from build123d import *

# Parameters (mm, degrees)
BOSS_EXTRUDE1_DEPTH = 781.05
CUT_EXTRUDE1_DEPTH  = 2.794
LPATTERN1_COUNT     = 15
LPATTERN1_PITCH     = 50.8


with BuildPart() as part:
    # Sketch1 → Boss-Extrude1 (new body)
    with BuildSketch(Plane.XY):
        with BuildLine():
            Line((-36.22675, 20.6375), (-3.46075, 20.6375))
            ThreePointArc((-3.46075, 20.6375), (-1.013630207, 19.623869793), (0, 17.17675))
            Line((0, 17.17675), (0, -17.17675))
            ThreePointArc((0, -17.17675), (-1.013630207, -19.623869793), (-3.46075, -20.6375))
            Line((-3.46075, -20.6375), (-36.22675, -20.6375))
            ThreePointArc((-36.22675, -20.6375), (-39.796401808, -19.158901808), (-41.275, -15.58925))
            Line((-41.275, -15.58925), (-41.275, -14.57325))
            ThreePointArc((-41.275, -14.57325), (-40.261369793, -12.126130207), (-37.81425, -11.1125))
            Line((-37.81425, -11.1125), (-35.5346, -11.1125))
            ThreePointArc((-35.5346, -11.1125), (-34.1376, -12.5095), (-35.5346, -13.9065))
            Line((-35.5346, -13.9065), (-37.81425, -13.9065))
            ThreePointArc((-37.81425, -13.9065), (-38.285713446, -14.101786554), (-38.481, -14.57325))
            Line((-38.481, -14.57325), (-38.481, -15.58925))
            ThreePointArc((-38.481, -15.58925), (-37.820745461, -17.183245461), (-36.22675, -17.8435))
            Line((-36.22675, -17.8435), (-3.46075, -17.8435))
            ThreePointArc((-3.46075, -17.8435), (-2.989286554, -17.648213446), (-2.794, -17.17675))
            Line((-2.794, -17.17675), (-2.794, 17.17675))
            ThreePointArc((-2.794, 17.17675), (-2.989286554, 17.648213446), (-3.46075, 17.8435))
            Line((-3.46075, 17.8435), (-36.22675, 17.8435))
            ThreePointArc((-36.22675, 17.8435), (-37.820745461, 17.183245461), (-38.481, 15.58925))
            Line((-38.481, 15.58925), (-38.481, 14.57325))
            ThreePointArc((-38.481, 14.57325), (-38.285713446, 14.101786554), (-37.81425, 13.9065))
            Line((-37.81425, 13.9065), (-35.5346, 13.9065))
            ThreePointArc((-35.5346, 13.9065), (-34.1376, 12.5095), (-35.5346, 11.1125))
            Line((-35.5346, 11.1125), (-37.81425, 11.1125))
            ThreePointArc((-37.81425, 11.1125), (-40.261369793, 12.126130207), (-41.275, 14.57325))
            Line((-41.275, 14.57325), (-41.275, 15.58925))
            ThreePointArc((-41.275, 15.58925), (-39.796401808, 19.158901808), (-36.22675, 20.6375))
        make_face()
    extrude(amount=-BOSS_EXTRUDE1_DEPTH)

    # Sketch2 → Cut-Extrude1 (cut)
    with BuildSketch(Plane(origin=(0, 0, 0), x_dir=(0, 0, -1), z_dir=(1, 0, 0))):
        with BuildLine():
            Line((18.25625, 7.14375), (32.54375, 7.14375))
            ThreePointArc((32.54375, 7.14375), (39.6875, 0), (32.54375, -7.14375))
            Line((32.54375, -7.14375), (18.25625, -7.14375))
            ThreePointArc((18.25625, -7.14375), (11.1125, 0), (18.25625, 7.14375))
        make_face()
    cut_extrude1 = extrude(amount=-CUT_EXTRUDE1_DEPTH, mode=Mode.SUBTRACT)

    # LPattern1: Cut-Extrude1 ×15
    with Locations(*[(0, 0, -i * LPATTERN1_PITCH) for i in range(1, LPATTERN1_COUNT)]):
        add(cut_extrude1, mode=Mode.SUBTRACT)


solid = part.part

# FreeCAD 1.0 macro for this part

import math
import FreeCAD as App
import Part
import Sketcher

V = App.Vector
Q = App.Units.Quantity

doc = App.newDocument("Part")
body = doc.addObject("PartDesign::Body", "Body")

# Sketch on XY plane
sketch1 = body.newObject("Sketcher::SketchObject", "Sketch")
sketch1.AttachmentSupport = (doc.getObject("XY_Plane"), [""])
sketch1.MapMode = "FlatFace"
sketch1.addGeometry([
    Part.LineSegment(V(-3.5, 20.6, 0), V(-36.2, 20.6, 0)),  # 0
    Part.ArcOfCircle(Part.Circle(V(-36.2, 15.6, 0), V(0, 0, 1), 5), math.radians(90), math.radians(180)),  # 1
    Part.LineSegment(V(-41.3, 15.6, 0), V(-41.3, 14.6, 0)),  # 2
    Part.ArcOfCircle(Part.Circle(V(-37.8, 14.6, 0), V(0, 0, 1), 3.5), math.radians(180), math.radians(270)),  # 3
    Part.LineSegment(V(-37.8, 11.1, 0), V(-35.5, 11.1, 0)),  # 4
    Part.ArcOfCircle(Part.Circle(V(-35.5, 12.5, 0), V(0, 0, 1), 1.4), math.radians(-90), math.radians(90)),  # 5
    Part.LineSegment(V(-35.5, 13.9, 0), V(-37.8, 13.9, 0)),  # 6
    Part.ArcOfCircle(Part.Circle(V(-37.8, 14.6, 0), V(0, 0, 1), 0.7), math.radians(-180), math.radians(-90)),  # 7
    Part.LineSegment(V(-38.5, 14.6, 0), V(-38.5, 15.6, 0)),  # 8
    Part.ArcOfCircle(Part.Circle(V(-36.2, 15.6, 0), V(0, 0, 1), 2.3), math.radians(90), math.radians(180)),  # 9
    Part.LineSegment(V(-36.2, 17.8, 0), V(-3.5, 17.8, 0)),  # 10
    Part.ArcOfCircle(Part.Circle(V(-3.5, 17.2, 0), V(0, 0, 1), 0.7), math.radians(0), math.radians(90)),  # 11
    Part.LineSegment(V(-2.8, 17.2, 0), V(-2.8, -17.2, 0)),  # 12
    Part.ArcOfCircle(Part.Circle(V(-3.5, -17.2, 0), V(0, 0, 1), 0.7), math.radians(-90), math.radians(0)),  # 13
    Part.LineSegment(V(-3.5, -17.8, 0), V(-36.2, -17.8, 0)),  # 14
    Part.ArcOfCircle(Part.Circle(V(-36.2, -15.6, 0), V(0, 0, 1), 2.3), math.radians(-180), math.radians(-90)),  # 15
    Part.LineSegment(V(-38.5, -15.6, 0), V(-38.5, -14.6, 0)),  # 16
    Part.ArcOfCircle(Part.Circle(V(-37.8, -14.6, 0), V(0, 0, 1), 0.7), math.radians(90), math.radians(180)),  # 17
    Part.LineSegment(V(-37.8, -13.9, 0), V(-35.5, -13.9, 0)),  # 18
    Part.ArcOfCircle(Part.Circle(V(-35.5, -12.5, 0), V(0, 0, 1), 1.4), math.radians(-90), math.radians(90)),  # 19
    Part.LineSegment(V(-35.5, -11.1, 0), V(-37.8, -11.1, 0)),  # 20
    Part.ArcOfCircle(Part.Circle(V(-37.8, -14.6, 0), V(0, 0, 1), 3.5), math.radians(90), math.radians(180)),  # 21
    Part.LineSegment(V(-41.3, -14.6, 0), V(-41.3, -15.6, 0)),  # 22
    Part.ArcOfCircle(Part.Circle(V(-36.2, -15.6, 0), V(0, 0, 1), 5), math.radians(180), math.radians(270)),  # 23
    Part.LineSegment(V(-36.2, -20.6, 0), V(-3.5, -20.6, 0)),  # 24
    Part.ArcOfCircle(Part.Circle(V(-3.5, -17.2, 0), V(0, 0, 1), 3.5), math.radians(-90), math.radians(0)),  # 25
    Part.LineSegment(V(0, -17.2, 0), V(0, 17.2, 0)),  # 26
    Part.ArcOfCircle(Part.Circle(V(-3.5, 17.2, 0), V(0, 0, 1), 3.5), math.radians(0), math.radians(90)),  # 27
], False)
sketch1.addConstraint([
    Sketcher.Constraint("Tangent", 0, 2, 1, 1),
    Sketcher.Constraint("Tangent", 1, 2, 2, 1),
    Sketcher.Constraint("Tangent", 2, 2, 3, 1),
    Sketcher.Constraint("Tangent", 3, 2, 4, 1),
    Sketcher.Constraint("Tangent", 4, 2, 5, 1),
    Sketcher.Constraint("Tangent", 5, 2, 6, 1),
    Sketcher.Constraint("Tangent", 6, 2, 7, 2),
    Sketcher.Constraint("Tangent", 7, 1, 8, 1),
    Sketcher.Constraint("Tangent", 8, 2, 9, 2),
    Sketcher.Constraint("Tangent", 9, 1, 10, 1),
    Sketcher.Constraint("Tangent", 10, 2, 11, 2),
    Sketcher.Constraint("Tangent", 11, 1, 12, 1),
    Sketcher.Constraint("Tangent", 12, 2, 13, 2),
    Sketcher.Constraint("Tangent", 13, 1, 14, 1),
    Sketcher.Constraint("Tangent", 14, 2, 15, 2),
    Sketcher.Constraint("Tangent", 15, 1, 16, 1),
    Sketcher.Constraint("Tangent", 16, 2, 17, 2),
    Sketcher.Constraint("Tangent", 17, 1, 18, 1),
    Sketcher.Constraint("Tangent", 18, 2, 19, 1),
    Sketcher.Constraint("Tangent", 19, 2, 20, 1),
    Sketcher.Constraint("Tangent", 20, 2, 21, 1),
    Sketcher.Constraint("Tangent", 21, 2, 22, 1),
    Sketcher.Constraint("Tangent", 22, 2, 23, 1),
    Sketcher.Constraint("Tangent", 23, 2, 24, 1),
    Sketcher.Constraint("Tangent", 24, 2, 25, 1),
    Sketcher.Constraint("Tangent", 25, 2, 26, 1),
    Sketcher.Constraint("Tangent", 26, 2, 27, 1),
    Sketcher.Constraint("Tangent", 27, 2, 0, 1),
    Sketcher.Constraint("Horizontal", 0),
    Sketcher.Constraint("Vertical", 2),
    Sketcher.Constraint("Horizontal", 4),
    Sketcher.Constraint("Horizontal", 6),
    Sketcher.Constraint("Vertical", 8),
    Sketcher.Constraint("Horizontal", 10),
    Sketcher.Constraint("Vertical", 12),
    Sketcher.Constraint("Horizontal", 14),
    Sketcher.Constraint("Vertical", 16),
    Sketcher.Constraint("Horizontal", 18),
    Sketcher.Constraint("Horizontal", 20),
    Sketcher.Constraint("Vertical", 22),
    Sketcher.Constraint("Horizontal", 24),
    Sketcher.Constraint("Vertical", 26),
    Sketcher.Constraint("Coincident", 7, 3, 3, 3),
    Sketcher.Constraint("Coincident", 9, 3, 1, 3),
    Sketcher.Constraint("Coincident", 21, 3, 17, 3),
    Sketcher.Constraint("Coincident", 23, 3, 15, 3),
    Sketcher.Constraint("Coincident", 25, 3, 13, 3),
    Sketcher.Constraint("Coincident", 27, 3, 11, 3),
    Sketcher.Constraint("Equal", 7, 11),
    Sketcher.Constraint("Equal", 11, 13),
    Sketcher.Constraint("Equal", 9, 15),
    Sketcher.Constraint("Equal", 13, 17),
    Sketcher.Constraint("Symmetric", 25, 2, 26, 2, -1, 1),
    Sketcher.Constraint("Symmetric", 3, 3, 17, 3, -1),
    Sketcher.Constraint("Vertical", 5, 3, 19, 3),
    Sketcher.Constraint("Radius", 5, Q("0.055 in")),
    Sketcher.Constraint("DistanceX", 0, 2, 0, 1, Q("1.29 in")),
    Sketcher.Constraint("DistanceY", 2, 2, 2, 1, Q("0.04 in")),
    Sketcher.Constraint("DistanceY", 13, 3, 9, 3, Q("1.29 in")),
    Sketcher.Constraint("DistanceY", 5, 3, 0, 2, Q("0.32 in")),
    Sketcher.Constraint("DistanceY", 12, 2, 12, 1, Q("1.3525 in")),
    Sketcher.Constraint("DistanceX", 5, 3, -1, 1, Q("1.399 in")),
])
pad1 = body.newObject("PartDesign::Pad", "Pad")
pad1.Profile = sketch1
pad1.Length = Q("30.75 in")
pad1.Reversed = True

# Sketch on YZ plane
sketch2 = body.newObject("Sketcher::SketchObject", "Sketch001")
sketch2.AttachmentSupport = (doc.getObject("YZ_Plane"), [""])
sketch2.MapMode = "FlatFace"
sketch2.addGeometry([
    Part.LineSegment(V(7, -33, 0), V(7, -18, 0)),
    Part.ArcOfCircle(Part.Circle(V(0, -18, 0), V(0, 0, 1), 7), math.radians(0), math.radians(180)),
    Part.LineSegment(V(-7, -18, 0), V(-7, -33, 0)),
    Part.ArcOfCircle(Part.Circle(V(0, -33, 0), V(0, 0, 1), 7), math.radians(180), math.radians(360)),
], False)
sketch2.addConstraint([
    Sketcher.Constraint("Tangent", 0, 2, 1, 1),
    Sketcher.Constraint("Tangent", 1, 2, 2, 1),
    Sketcher.Constraint("Tangent", 2, 2, 3, 1),
    Sketcher.Constraint("Tangent", 3, 2, 0, 1),
    Sketcher.Constraint("Vertical", 0),
    Sketcher.Constraint("Vertical", 2),
    Sketcher.Constraint("PointOnObject", 1, 3, -2),
    Sketcher.Constraint("Radius", 1, Q("0.28125 in")),
    Sketcher.Constraint("DistanceY", 0, 1, 0, 2, Q("0.5625 in")),
    Sketcher.Constraint("DistanceY", 1, 3, -1, 1, Q("0.71875 in")),
])
pocket1 = body.newObject("PartDesign::Pocket", "Pocket")
pocket1.Profile = sketch2
pocket1.Length = Q("0.11 in")
doc.recompute()

linearpattern = body.newObject("PartDesign::LinearPattern", "LinearPattern")
linearpattern.Originals = [pocket1]
linearpattern.Direction = (doc.getObject("Z_Axis"), [""])
linearpattern.Mode = "offset"
linearpattern.Offset = Q("2 in")
linearpattern.Occurrences = 15
linearpattern.Reversed = True
body.Tip = linearpattern

doc.recompute()
